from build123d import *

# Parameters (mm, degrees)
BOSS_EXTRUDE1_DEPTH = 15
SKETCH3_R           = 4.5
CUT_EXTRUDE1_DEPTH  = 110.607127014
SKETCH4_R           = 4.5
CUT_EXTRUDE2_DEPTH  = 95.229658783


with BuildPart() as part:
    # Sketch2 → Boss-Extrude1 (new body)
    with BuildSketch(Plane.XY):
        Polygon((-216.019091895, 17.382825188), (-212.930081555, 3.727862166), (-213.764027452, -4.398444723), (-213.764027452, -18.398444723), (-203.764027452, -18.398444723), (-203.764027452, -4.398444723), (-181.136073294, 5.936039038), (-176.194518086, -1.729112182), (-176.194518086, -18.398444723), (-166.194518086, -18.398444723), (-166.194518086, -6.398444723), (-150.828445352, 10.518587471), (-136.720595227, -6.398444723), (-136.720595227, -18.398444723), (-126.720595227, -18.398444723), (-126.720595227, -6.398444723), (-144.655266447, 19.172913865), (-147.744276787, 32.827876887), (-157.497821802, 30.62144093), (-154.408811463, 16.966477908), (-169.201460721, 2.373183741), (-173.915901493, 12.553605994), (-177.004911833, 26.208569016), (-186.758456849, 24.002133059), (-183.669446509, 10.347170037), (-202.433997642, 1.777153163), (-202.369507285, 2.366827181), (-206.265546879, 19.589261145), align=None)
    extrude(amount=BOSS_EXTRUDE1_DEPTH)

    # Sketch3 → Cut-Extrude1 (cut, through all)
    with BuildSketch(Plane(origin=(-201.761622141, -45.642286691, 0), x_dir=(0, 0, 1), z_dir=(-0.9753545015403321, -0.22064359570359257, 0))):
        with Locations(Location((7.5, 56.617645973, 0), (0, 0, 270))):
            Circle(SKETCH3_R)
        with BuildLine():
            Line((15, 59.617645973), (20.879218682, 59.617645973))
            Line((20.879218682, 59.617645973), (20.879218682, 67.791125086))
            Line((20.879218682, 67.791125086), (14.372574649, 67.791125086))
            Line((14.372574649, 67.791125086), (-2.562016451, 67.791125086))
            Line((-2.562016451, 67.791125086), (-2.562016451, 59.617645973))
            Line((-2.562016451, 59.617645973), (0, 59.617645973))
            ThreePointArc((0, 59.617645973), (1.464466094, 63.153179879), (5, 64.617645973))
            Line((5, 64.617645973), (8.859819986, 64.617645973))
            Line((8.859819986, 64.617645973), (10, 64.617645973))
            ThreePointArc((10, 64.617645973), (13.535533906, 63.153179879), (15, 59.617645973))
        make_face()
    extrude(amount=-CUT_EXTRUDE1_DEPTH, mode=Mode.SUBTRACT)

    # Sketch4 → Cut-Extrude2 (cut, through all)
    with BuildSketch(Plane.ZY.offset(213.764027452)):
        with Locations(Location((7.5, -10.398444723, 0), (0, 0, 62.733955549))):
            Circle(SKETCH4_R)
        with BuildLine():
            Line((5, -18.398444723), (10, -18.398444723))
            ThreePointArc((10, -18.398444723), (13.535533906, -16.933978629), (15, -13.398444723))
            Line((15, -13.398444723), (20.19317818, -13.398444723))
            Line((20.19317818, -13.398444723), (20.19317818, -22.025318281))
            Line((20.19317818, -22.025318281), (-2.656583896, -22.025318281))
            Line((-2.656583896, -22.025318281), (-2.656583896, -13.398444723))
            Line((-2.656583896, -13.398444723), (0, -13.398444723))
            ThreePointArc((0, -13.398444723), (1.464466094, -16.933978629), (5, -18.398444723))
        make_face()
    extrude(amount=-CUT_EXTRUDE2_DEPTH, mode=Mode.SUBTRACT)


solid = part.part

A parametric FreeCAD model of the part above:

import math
import FreeCAD as App
import Part
import Sketcher
from FreeCAD import Vector
Q = App.Units.Quantity

doc = App.newDocument("Part")
params = doc.addObject("Spreadsheet::Sheet", "Params")
for row, (alias, value) in enumerate([
    ("sketch1_width", "10 mm"),
    ("sketch1_height", "14 mm"),
    ("sketch1_height2", "12 mm"),
    ("sketch1_length", "14 mm"),
    ("sketch1_length2", "10 mm"),
    ("pad1_length", "15 mm"),
    ("sketch2_diameter", "9 mm"),
    ("sketch2_radius", "5 mm"),
    ("sketch2_width", "5 mm"),
    ("sketch3_diameter", "9 mm"),
    ("sketch3_radius", "5 mm"),
    ("sketch3_height", "5 mm"),
], start=1):
    params.set(f"A{row}", alias)
    params.set(f"B{row}", "=" + value)
    params.setAlias(f"B{row}", alias)

body = doc.addObject("PartDesign::Body", "Body")

# Sketch on XY plane
sketch1 = doc.addObject("Sketcher::SketchObject", "Sketch")
body.addObject(sketch1)
sketch1.AttachmentSupport = (doc.XY_Plane, [""])
sketch1.MapMode = "FlatFace"
sketch1.addGeometry([
    Part.LineSegment(Vector(-216.019092, 17.382825, 0), Vector(-212.930082, 3.727862, 0)),  # 0
    Part.LineSegment(Vector(-212.930082, 3.727862, 0), Vector(-213.764027, -4.398445, 0)),  # 1
    Part.LineSegment(Vector(-213.764027, -4.398445, 0), Vector(-213.764027, -18.398445, 0)),  # 2
    Part.LineSegment(Vector(-213.764027, -18.398445, 0), Vector(-203.764027, -18.398445, 0)),  # 3
    Part.LineSegment(Vector(-203.764027, -18.398445, 0), Vector(-203.764027, -4.398445, 0)),  # 4
    Part.LineSegment(Vector(-203.764027, -4.398445, 0), Vector(-181.136073, 5.936039, 0)),  # 5
    Part.LineSegment(Vector(-181.136073, 5.936039, 0), Vector(-176.194518, -1.729112, 0)),  # 6
    Part.LineSegment(Vector(-176.194518, -1.729112, 0), Vector(-176.194518, -18.398445, 0)),  # 7
    Part.LineSegment(Vector(-176.194518, -18.398445, 0), Vector(-166.194518, -18.398445, 0)),  # 8
    Part.LineSegment(Vector(-166.194518, -18.398445, 0), Vector(-166.194518, -6.398445, 0)),  # 9
    Part.LineSegment(Vector(-166.194518, -6.398445, 0), Vector(-150.828445, 10.518587, 0)),  # 10
    Part.LineSegment(Vector(-150.828445, 10.518587, 0), Vector(-136.720595, -6.398445, 0)),  # 11
    Part.LineSegment(Vector(-136.720595, -6.398445, 0), Vector(-136.720595, -18.398445, 0)),  # 12
    Part.LineSegment(Vector(-136.720595, -18.398445, 0), Vector(-126.720595, -18.398445, 0)),  # 13
    Part.LineSegment(Vector(-126.720595, -18.398445, 0), Vector(-126.720595, -6.398445, 0)),  # 14
    Part.LineSegment(Vector(-126.720595, -6.398445, 0), Vector(-144.655266, 19.172914, 0)),  # 15
    Part.LineSegment(Vector(-144.655266, 19.172914, 0), Vector(-147.744277, 32.827877, 0)),  # 16
    Part.LineSegment(Vector(-147.744277, 32.827877, 0), Vector(-157.497822, 30.621441, 0)),  # 17
    Part.LineSegment(Vector(-157.497822, 30.621441, 0), Vector(-154.408811, 16.966478, 0)),  # 18
    Part.LineSegment(Vector(-154.408811, 16.966478, 0), Vector(-169.201461, 2.373184, 0)),  # 19
    Part.LineSegment(Vector(-169.201461, 2.373184, 0), Vector(-173.915901, 12.553606, 0)),  # 20
    Part.LineSegment(Vector(-173.915901, 12.553606, 0), Vector(-177.004912, 26.208569, 0)),  # 21
    Part.LineSegment(Vector(-177.004912, 26.208569, 0), Vector(-186.758457, 24.002133, 0)),  # 22
    Part.LineSegment(Vector(-186.758457, 24.002133, 0), Vector(-183.669447, 10.34717, 0)),  # 23
    Part.LineSegment(Vector(-183.669447, 10.34717, 0), Vector(-202.433998, 1.777153, 0)),  # 24
    Part.LineSegment(Vector(-202.433998, 1.777153, 0), Vector(-202.369507, 2.366827, 0)),  # 25
    Part.LineSegment(Vector(-202.369507, 2.366827, 0), Vector(-206.265547, 19.589261, 0)),  # 26
    Part.LineSegment(Vector(-206.265547, 19.589261, 0), Vector(-216.019092, 17.382825, 0)),  # 27
], False)
sketch1.addConstraint([
    Sketcher.Constraint("Coincident", 0, 2, 1, 1),
    Sketcher.Constraint("Coincident", 1, 2, 2, 1),
    Sketcher.Constraint("Coincident", 2, 2, 3, 1),
    Sketcher.Constraint("Coincident", 3, 2, 4, 1),
    Sketcher.Constraint("Coincident", 4, 2, 5, 1),
    Sketcher.Constraint("Coincident", 5, 2, 6, 1),
    Sketcher.Constraint("Coincident", 6, 2, 7, 1),
    Sketcher.Constraint("Coincident", 7, 2, 8, 1),
    Sketcher.Constraint("Coincident", 8, 2, 9, 1),
    Sketcher.Constraint("Coincident", 9, 2, 10, 1),
    Sketcher.Constraint("Coincident", 10, 2, 11, 1),
    Sketcher.Constraint("Coincident", 11, 2, 12, 1),
    Sketcher.Constraint("Coincident", 12, 2, 13, 1),
    Sketcher.Constraint("Coincident", 13, 2, 14, 1),
    Sketcher.Constraint("Coincident", 14, 2, 15, 1),
    Sketcher.Constraint("Coincident", 15, 2, 16, 1),
    Sketcher.Constraint("Coincident", 16, 2, 17, 1),
    Sketcher.Constraint("Coincident", 17, 2, 18, 1),
    Sketcher.Constraint("Coincident", 18, 2, 19, 1),
    Sketcher.Constraint("Coincident", 19, 2, 20, 1),
    Sketcher.Constraint("Coincident", 20, 2, 21, 1),
    Sketcher.Constraint("Coincident", 21, 2, 22, 1),
    Sketcher.Constraint("Coincident", 22, 2, 23, 1),
    Sketcher.Constraint("Coincident", 23, 2, 24, 1),
    Sketcher.Constraint("Coincident", 24, 2, 25, 1),
    Sketcher.Constraint("Coincident", 25, 2, 26, 1),
    Sketcher.Constraint("Coincident", 26, 2, 27, 1),
    Sketcher.Constraint("Coincident", 27, 2, 0, 1),
    Sketcher.Constraint("Vertical", 2),
    Sketcher.Constraint("Horizontal", 3),
    Sketcher.Constraint("Vertical", 4),
    Sketcher.Constraint("Vertical", 7),
    Sketcher.Constraint("Horizontal", 8),
    Sketcher.Constraint("Vertical", 9),
    Sketcher.Constraint("Vertical", 12),
    Sketcher.Constraint("Horizontal", 13),
    Sketcher.Constraint("Vertical", 14),
    Sketcher.Constraint("Parallel", 0, 16),
    Sketcher.Constraint("Perpendicular", 16, 17),
    Sketcher.Constraint("Perpendicular", 17, 18),
    Sketcher.Constraint("Parallel", 18, 21),
    Sketcher.Constraint("Perpendicular", 21, 22),
    Sketcher.Constraint("Perpendicular", 22, 23),
    Sketcher.Constraint("Parallel", 5, 24),
    Sketcher.Constraint("Parallel", 23, 26),
    Sketcher.Constraint("Perpendicular", 26, 27),
    Sketcher.Constraint("Horizontal", 1, 2, 4, 2),
    Sketcher.Constraint("Horizontal", 3, 2, 7, 2),
    Sketcher.Constraint("Horizontal", 9, 2, 11, 2),
    Sketcher.Constraint("Horizontal", 8, 2, 12, 2),
    Sketcher.Constraint("Horizontal", 11, 2, 14, 2),
    Sketcher.Constraint("Equal", 3, 8),
    Sketcher.Constraint("Equal", 8, 13),
    Sketcher.Constraint("Equal", 0, 16),
    Sketcher.Constraint("Equal", 16, 18),
    Sketcher.Constraint("Equal", 18, 21),
    Sketcher.Constraint("Equal", 17, 22),
    Sketcher.Constraint("Equal", 21, 23),
    Sketcher.Constraint("Equal", 22, 27),
    Sketcher.Constraint("DistanceX", 3, 1, 3, 2, Q("10 mm")),
    Sketcher.Constraint("DistanceY", 2, 2, 2, 1, Q("14 mm")),
    Sketcher.Constraint("DistanceY", 9, 1, 9, 2, Q("12 mm")),
    Sketcher.Constraint("Distance", 0, Q("14 mm")),
    Sketcher.Constraint("Distance", 17, Q("10 mm")),
    Sketcher.Constraint("DistanceY", 25, 2, 27, 2, Q("15.015998 mm")),
    Sketcher.Constraint("DistanceX", 20, 2, -1, 1, Q("173.915901 mm")),
    Sketcher.Constraint("DistanceY", 6, 2, 10, 2, Q("12.2477 mm")),
    Sketcher.Constraint("DistanceY", 5, 2, 17, 2, Q("24.685402 mm")),
    Sketcher.Constraint("DistanceY", 18, 2, 16, 2, Q("15.861399 mm")),
    Sketcher.Constraint("DistanceX", 21, 2, 18, 2, Q("22.5961 mm")),
    Sketcher.Constraint("Distance", 5, Q("24.876211 mm")),
    Sketcher.Constraint("Distance", 6, Q("9.119951 mm")),
    Sketcher.Constraint("Distance", 10, Q("22.853931 mm")),
    Sketcher.Constraint("Distance", 11, Q("22.027651 mm")),
    Sketcher.Constraint("Distance", 19, Q("20.779478 mm")),
    Sketcher.Constraint("Distance", 24, Q("20.62895 mm")),
    Sketcher.Constraint("Distance", 25, Q("0.59319 mm")),
    Sketcher.Constraint("DistanceY", 7, 2, 7, 1, Q("16.669333 mm")),
    Sketcher.Constraint("DistanceX", 0, 2, -1, 1, Q("212.930082 mm")),
    Sketcher.Constraint("DistanceY", -1, 1, 5, 2, Q("5.936039 mm")),
    Sketcher.Constraint("DistanceX", 6, 2, -1, 1, Q("176.194518 mm")),
    Sketcher.Constraint("DistanceX", 19, 2, -1, 1, Q("169.201461 mm")),
    Sketcher.Constraint("DistanceY", -1, 1, 21, 2, Q("26.208569 mm")),
    Sketcher.Constraint("DistanceY", -1, 1, 26, 2, Q("19.589261 mm")),
])
sketch1.setExpression("Constraints[59]", "Params.sketch1_width")
sketch1.setExpression("Constraints[60]", "Params.sketch1_height")
sketch1.setExpression("Constraints[61]", "Params.sketch1_height2")
sketch1.setExpression("Constraints[62]", "Params.sketch1_length")
sketch1.setExpression("Constraints[63]", "Params.sketch1_length2")
pad1 = doc.addObject("PartDesign::Pad", "Pad")
body.addObject(pad1)
pad1.Profile = sketch1
pad1.setExpression("Length", "Params.pad1_length")

# Sketch on an angled plane
sketch2 = doc.addObject("Sketcher::SketchObject", "Sketch001")
body.addObject(sketch2)
sketch2.Placement = App.Placement(Vector(-201.761622, -45.642287, 0), App.Rotation(Vector(0, 0, 1), Vector(-0.220643596, 0.975354502, 0), Vector(-0.975354502, -0.220643596, 0), "ZXY"))
sketch2.addGeometry([
    Part.Circle(Vector(7.5, 56.617646, 0), Vector(0, 0, 1), 4.5),  # 0
    Part.LineSegment(Vector(15, 59.617646, 0), Vector(20.879219, 59.617646, 0)),  # 1
    Part.LineSegment(Vector(20.879219, 59.617646, 0), Vector(20.879219, 67.791125, 0)),  # 2
    Part.LineSegment(Vector(20.879219, 67.791125, 0), Vector(-2.562016, 67.791125, 0)),  # 3
    Part.LineSegment(Vector(-2.562016, 67.791125, 0), Vector(-2.562016, 59.617646, 0)),  # 4
    Part.LineSegment(Vector(-2.562016, 59.617646, 0), Vector(0, 59.617646, 0)),  # 5
    Part.ArcOfCircle(Part.Circle(Vector(5, 59.617646, 0), Vector(0, 0, 1), 5), math.radians(90), math.radians(180)),  # 6
    Part.LineSegment(Vector(5, 64.617646, 0), Vector(10, 64.617646, 0)),  # 7
    Part.ArcOfCircle(Part.Circle(Vector(10, 59.617646, 0), Vector(0, 0, 1), 5), math.radians(0), math.radians(90)),  # 8
], False)
sketch2.addConstraint([
    Sketcher.Constraint("Coincident", 1, 2, 2, 1),
    Sketcher.Constraint("Coincident", 2, 2, 3, 1),
    Sketcher.Constraint("Coincident", 3, 2, 4, 1),
    Sketcher.Constraint("Coincident", 4, 2, 5, 1),
    Sketcher.Constraint("Coincident", 5, 2, 6, 2),
    Sketcher.Constraint("Tangent", 6, 1, 7, 1),
    Sketcher.Constraint("Tangent", 7, 2, 8, 2),
    Sketcher.Constraint("Coincident", 8, 1, 1, 1),
    Sketcher.Constraint("Horizontal", 1),
    Sketcher.Constraint("Vertical", 2),
    Sketcher.Constraint("Horizontal", 3),
    Sketcher.Constraint("Vertical", 4),
    Sketcher.Constraint("Horizontal", 5),
    Sketcher.Constraint("Horizontal", 7),
    Sketcher.Constraint("Equal", 6, 8),
    Sketcher.Constraint("PointOnObject", 5, 2, -2),
    Sketcher.Constraint("Horizontal", 8, 3, 1, 2),
    Sketcher.Constraint("Horizontal", 1, 2, 4, 2),
    Sketcher.Constraint("Diameter", 0, Q("9 mm")),
    Sketcher.Constraint("Radius", 6, Q("5 mm")),
    Sketcher.Constraint("DistanceX", 7, 1, 7, 2, Q("5 mm")),
    Sketcher.Constraint("DistanceY", 0, 3, 6, 3, Q("3 mm")),
    Sketcher.Constraint("DistanceX", -1, 1, 0, 3, Q("7.5 mm")),
    Sketcher.Constraint("DistanceX", 1, 1, 1, 2, Q("5.879219 mm")),
    Sketcher.Constraint("DistanceY", 2, 1, 2, 2, Q("8.173479 mm")),
    Sketcher.Constraint("DistanceX", 3, 2, 3, 1, Q("23.441235 mm")),
    Sketcher.Constraint("DistanceY", -1, 1, 0, 3, Q("56.617646 mm")),
])
sketch2.setExpression("Constraints[18]", "Params.sketch2_diameter")
sketch2.setExpression("Constraints[19]", "Params.sketch2_radius")
sketch2.setExpression("Constraints[20]", "Params.sketch2_width")
pocket1 = doc.addObject("PartDesign::Pocket", "Pocket")
body.addObject(pocket1)
pocket1.Profile = sketch2
pocket1.Type = "ThroughAll"

# Sketch on YZ plane
sketch3 = doc.addObject("Sketcher::SketchObject", "Sketch002")
body.addObject(sketch3)
sketch3.AttachmentSupport = (doc.YZ_Plane, [""])
sketch3.MapMode = "FlatFace"
sketch3.AttachmentOffset = App.Placement(Vector(0, 0, -213.764027), App.Rotation())
sketch3.addGeometry([
    Part.Circle(Vector(-10.398445, 7.5, 0), Vector(0, 0, 1), 4.5),  # 0
    Part.LineSegment(Vector(-18.398445, 10, 0), Vector(-18.398445, 5, 0)),  # 1
    Part.ArcOfCircle(Part.Circle(Vector(-13.398445, 5, 0), Vector(0, 0, 1), 5), math.radians(180), math.radians(270)),  # 2
    Part.LineSegment(Vector(-13.398445, 0, 0), Vector(-13.398445, -2.656584, 0)),  # 3
    Part.LineSegment(Vector(-13.398445, -2.656584, 0), Vector(-22.025318, -2.656584, 0)),  # 4
    Part.LineSegment(Vector(-22.025318, -2.656584, 0), Vector(-22.025318, 20.193178, 0)),  # 5
    Part.LineSegment(Vector(-22.025318, 20.193178, 0), Vector(-13.398445, 20.193178, 0)),  # 6
    Part.LineSegment(Vector(-13.398445, 20.193178, 0), Vector(-13.398445, 15, 0)),  # 7
    Part.ArcOfCircle(Part.Circle(Vector(-13.398445, 10, 0), Vector(0, 0, 1), 5), math.radians(90), math.radians(180)),  # 8
], False)
sketch3.addConstraint([
    Sketcher.Constraint("Tangent", 1, 2, 2, 1),
    Sketcher.Constraint("Coincident", 2, 2, 3, 1),
    Sketcher.Constraint("Coincident", 3, 2, 4, 1),
    Sketcher.Constraint("Coincident", 4, 2, 5, 1),
    Sketcher.Constraint("Coincident", 5, 2, 6, 1),
    Sketcher.Constraint("Coincident", 6, 2, 7, 1),
    Sketcher.Constraint("Coincident", 7, 2, 8, 1),
    Sketcher.Constraint("Tangent", 8, 2, 1, 1),
    Sketcher.Constraint("Vertical", 1),
    Sketcher.Constraint("Vertical", 3),
    Sketcher.Constraint("Horizontal", 4),
    Sketcher.Constraint("Vertical", 5),
    Sketcher.Constraint("Horizontal", 6),
    Sketcher.Constraint("Vertical", 7),
    Sketcher.Constraint("Equal", 2, 8),
    Sketcher.Constraint("PointOnObject", 2, 2, -1),
    Sketcher.Constraint("Vertical", 8, 3, 2, 2),
    Sketcher.Constraint("Vertical", 3, 2, 6, 2),
    Sketcher.Constraint("Diameter", 0, Q("9 mm")),
    Sketcher.Constraint("Radius", 2, Q("5 mm")),
    Sketcher.Constraint("DistanceY", 1, 2, 1, 1, Q("5 mm")),
    Sketcher.Constraint("DistanceX", 2, 3, 0, 3, Q("3 mm")),
    Sketcher.Constraint("DistanceY", -1, 1, 0, 3, Q("7.5 mm")),
    Sketcher.Constraint("DistanceY", 7, 2, 7, 1, Q("5.193178 mm")),
    Sketcher.Constraint("DistanceX", 4, 2, 4, 1, Q("8.626874 mm")),
    Sketcher.Constraint("DistanceY", 3, 2, 3, 1, Q("2.656584 mm")),
    Sketcher.Constraint("DistanceX", 4, 2, -1, 1, Q("22.025318 mm")),
])
sketch3.setExpression("Constraints[18]", "Params.sketch3_diameter")
sketch3.setExpression("Constraints[19]", "Params.sketch3_radius")
sketch3.setExpression("Constraints[20]", "Params.sketch3_height")
pocket2 = doc.addObject("PartDesign::Pocket", "Pocket001")
body.addObject(pocket2)
pocket2.Profile = sketch3
pocket2.Type = "ThroughAll"
pocket2.Reversed = True

doc.recompute()
